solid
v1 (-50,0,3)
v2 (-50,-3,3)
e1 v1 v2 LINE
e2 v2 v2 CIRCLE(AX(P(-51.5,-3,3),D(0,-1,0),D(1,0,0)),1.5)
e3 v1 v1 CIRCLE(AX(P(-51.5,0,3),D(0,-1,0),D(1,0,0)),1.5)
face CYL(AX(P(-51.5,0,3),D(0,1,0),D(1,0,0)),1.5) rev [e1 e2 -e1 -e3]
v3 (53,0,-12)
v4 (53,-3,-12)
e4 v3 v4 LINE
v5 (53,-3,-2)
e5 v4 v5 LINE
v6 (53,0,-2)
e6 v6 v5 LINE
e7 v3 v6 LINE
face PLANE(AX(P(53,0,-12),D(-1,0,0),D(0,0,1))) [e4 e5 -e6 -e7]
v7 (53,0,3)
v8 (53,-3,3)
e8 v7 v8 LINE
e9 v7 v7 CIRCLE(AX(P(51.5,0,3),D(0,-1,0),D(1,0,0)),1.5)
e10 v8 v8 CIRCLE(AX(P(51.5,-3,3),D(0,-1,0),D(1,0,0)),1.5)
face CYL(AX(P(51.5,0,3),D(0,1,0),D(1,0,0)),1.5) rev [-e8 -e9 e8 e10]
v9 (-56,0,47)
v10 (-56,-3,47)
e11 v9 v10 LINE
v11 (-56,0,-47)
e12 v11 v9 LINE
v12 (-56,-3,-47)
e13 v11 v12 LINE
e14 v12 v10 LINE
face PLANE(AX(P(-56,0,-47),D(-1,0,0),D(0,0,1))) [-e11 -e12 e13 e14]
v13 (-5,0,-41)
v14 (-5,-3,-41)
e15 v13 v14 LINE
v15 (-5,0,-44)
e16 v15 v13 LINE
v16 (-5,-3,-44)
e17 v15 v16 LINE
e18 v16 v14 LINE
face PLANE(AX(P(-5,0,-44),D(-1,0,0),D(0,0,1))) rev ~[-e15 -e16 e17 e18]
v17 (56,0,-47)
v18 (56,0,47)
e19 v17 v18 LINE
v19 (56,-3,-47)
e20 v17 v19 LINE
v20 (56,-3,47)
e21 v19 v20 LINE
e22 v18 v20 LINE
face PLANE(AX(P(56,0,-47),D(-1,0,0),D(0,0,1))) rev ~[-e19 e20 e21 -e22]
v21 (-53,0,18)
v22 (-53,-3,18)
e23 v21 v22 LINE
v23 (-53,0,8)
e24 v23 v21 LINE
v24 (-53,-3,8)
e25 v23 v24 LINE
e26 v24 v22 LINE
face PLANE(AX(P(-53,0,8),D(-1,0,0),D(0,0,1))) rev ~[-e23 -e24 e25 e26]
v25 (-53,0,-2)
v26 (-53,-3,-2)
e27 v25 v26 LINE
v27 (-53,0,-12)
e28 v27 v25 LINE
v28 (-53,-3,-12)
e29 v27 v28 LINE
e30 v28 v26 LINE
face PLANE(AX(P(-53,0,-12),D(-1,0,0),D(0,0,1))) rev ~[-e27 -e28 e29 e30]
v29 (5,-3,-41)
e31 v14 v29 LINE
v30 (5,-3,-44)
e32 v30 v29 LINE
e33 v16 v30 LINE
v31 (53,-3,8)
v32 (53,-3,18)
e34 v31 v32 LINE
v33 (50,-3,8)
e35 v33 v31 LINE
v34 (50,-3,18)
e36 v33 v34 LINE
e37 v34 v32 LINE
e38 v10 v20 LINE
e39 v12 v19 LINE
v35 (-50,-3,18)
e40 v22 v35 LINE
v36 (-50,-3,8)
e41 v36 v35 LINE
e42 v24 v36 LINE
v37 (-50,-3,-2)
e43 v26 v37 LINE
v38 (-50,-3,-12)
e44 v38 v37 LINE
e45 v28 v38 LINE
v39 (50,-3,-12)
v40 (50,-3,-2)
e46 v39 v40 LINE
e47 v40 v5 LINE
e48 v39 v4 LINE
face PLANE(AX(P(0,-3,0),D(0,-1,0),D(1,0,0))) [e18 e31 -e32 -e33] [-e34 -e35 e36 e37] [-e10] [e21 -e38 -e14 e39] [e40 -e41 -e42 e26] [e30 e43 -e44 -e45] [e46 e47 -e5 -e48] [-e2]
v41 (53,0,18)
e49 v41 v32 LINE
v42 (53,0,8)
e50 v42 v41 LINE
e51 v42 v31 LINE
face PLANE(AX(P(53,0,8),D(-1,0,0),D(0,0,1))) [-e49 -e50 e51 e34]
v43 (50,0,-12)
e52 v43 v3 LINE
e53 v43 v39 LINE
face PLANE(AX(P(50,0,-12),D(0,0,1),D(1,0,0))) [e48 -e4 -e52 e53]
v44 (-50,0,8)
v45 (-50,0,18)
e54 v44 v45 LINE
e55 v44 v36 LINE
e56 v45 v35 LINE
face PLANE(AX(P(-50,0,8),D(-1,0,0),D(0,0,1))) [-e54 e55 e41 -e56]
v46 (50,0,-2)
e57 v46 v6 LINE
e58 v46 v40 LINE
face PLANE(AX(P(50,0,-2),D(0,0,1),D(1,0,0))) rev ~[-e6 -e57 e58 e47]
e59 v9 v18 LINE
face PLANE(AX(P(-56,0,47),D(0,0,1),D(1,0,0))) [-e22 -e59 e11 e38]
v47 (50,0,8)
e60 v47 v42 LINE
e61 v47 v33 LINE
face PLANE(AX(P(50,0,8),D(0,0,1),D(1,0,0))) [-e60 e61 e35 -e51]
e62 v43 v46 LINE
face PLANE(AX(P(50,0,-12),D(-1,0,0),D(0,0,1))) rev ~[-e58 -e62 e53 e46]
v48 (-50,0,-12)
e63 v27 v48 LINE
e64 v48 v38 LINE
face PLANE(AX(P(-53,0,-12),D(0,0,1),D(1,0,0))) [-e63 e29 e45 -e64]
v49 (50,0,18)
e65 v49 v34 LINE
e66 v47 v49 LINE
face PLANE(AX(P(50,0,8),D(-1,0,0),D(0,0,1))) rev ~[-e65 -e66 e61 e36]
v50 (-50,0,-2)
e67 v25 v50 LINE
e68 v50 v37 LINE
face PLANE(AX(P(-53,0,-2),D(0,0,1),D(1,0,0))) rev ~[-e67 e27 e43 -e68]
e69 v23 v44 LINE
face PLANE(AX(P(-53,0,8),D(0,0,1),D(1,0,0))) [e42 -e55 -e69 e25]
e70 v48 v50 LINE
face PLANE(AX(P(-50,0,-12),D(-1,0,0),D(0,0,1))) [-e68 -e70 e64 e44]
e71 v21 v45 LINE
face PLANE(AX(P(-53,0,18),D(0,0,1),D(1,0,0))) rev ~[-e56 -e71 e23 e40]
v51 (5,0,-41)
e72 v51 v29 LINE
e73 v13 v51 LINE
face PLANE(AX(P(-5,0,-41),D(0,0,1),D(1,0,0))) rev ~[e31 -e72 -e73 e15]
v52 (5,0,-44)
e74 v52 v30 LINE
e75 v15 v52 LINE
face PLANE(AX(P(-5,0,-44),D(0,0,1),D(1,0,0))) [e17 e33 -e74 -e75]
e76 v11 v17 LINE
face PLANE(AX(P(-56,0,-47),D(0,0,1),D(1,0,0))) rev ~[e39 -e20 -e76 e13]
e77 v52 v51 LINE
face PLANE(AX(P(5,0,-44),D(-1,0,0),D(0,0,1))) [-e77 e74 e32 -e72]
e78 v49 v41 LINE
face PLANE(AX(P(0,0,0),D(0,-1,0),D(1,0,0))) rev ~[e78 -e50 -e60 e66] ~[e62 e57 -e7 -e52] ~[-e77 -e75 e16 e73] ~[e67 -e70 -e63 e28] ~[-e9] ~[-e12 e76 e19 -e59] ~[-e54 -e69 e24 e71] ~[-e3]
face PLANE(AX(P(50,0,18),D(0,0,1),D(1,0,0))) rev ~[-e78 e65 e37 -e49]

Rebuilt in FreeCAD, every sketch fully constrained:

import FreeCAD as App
import Part
import Sketcher

V = App.Vector

doc = App.newDocument("Part")
body = doc.addObject("PartDesign::Body", "Body")

# Sketch on XZ plane
sketch1 = body.newObject("Sketcher::SketchObject", "Sketch")
sketch1.AttachmentSupport = (doc.getObject("XZ_Plane"), [""])
sketch1.MapMode = "FlatFace"
sketch1.addGeometry(Part.LineSegment(V(-56, 47, 0), V(-56, -47, 0)), False)
sketch1.addGeometry(Part.LineSegment(V(-56, -47, 0), V(56, -47, 0)), False)
sketch1.addGeometry(Part.LineSegment(V(56, -47, 0), V(56, 47, 0)), False)
sketch1.addGeometry(Part.LineSegment(V(56, 47, 0), V(-56, 47, 0)), False)
sketch1.addGeometry(Part.LineSegment(V(5, -44, 0), V(-5, -44, 0)), False)
sketch1.addGeometry(Part.LineSegment(V(-5, -44, 0), V(-5, -41, 0)), False)
sketch1.addGeometry(Part.LineSegment(V(-5, -41, 0), V(5, -41, 0)), False)
sketch1.addGeometry(Part.LineSegment(V(5, -41, 0), V(5, -44, 0)), False)
sketch1.addGeometry(Part.LineSegment(V(-50, -12, 0), V(-53, -12, 0)), False)
sketch1.addGeometry(Part.LineSegment(V(-53, -12, 0), V(-53, -2, 0)), False)
sketch1.addGeometry(Part.LineSegment(V(-53, -2, 0), V(-50, -2, 0)), False)
sketch1.addGeometry(Part.LineSegment(V(-50, -2, 0), V(-50, -12, 0)), False)
sketch1.addGeometry(Part.Circle(V(-51.5, 3, 0), V(0, 0, 1), 1.5), False)
sketch1.addGeometry(Part.LineSegment(V(-50, 8, 0), V(-53, 8, 0)), False)
sketch1.addGeometry(Part.LineSegment(V(-53, 8, 0), V(-53, 18, 0)), False)
sketch1.addGeometry(Part.LineSegment(V(-53, 18, 0), V(-50, 18, 0)), False)
sketch1.addGeometry(Part.LineSegment(V(-50, 18, 0), V(-50, 8, 0)), False)
sketch1.addGeometry(Part.LineSegment(V(53, -12, 0), V(50, -12, 0)), False)
sketch1.addGeometry(Part.LineSegment(V(50, -12, 0), V(50, -2, 0)), False)
sketch1.addGeometry(Part.LineSegment(V(50, -2, 0), V(53, -2, 0)), False)
sketch1.addGeometry(Part.LineSegment(V(53, -2, 0), V(53, -12, 0)), False)
sketch1.addGeometry(Part.Circle(V(51.5, 3, 0), V(0, 0, 1), 1.5), False)
sketch1.addGeometry(Part.LineSegment(V(53, 8, 0), V(50, 8, 0)), False)
sketch1.addGeometry(Part.LineSegment(V(50, 8, 0), V(50, 18, 0)), False)
sketch1.addGeometry(Part.LineSegment(V(50, 18, 0), V(53, 18, 0)), False)
sketch1.addGeometry(Part.LineSegment(V(53, 18, 0), V(53, 8, 0)), False)
sketch1.addConstraint(Sketcher.Constraint("Coincident", 0, 2, 1, 1))
sketch1.addConstraint(Sketcher.Constraint("Coincident", 1, 2, 2, 1))
sketch1.addConstraint(Sketcher.Constraint("Coincident", 2, 2, 3, 1))
sketch1.addConstraint(Sketcher.Constraint("Coincident", 3, 2, 0, 1))
sketch1.addConstraint(Sketcher.Constraint("Coincident", 4, 2, 5, 1))
sketch1.addConstraint(Sketcher.Constraint("Coincident", 5, 2, 6, 1))
sketch1.addConstraint(Sketcher.Constraint("Coincident", 6, 2, 7, 1))
sketch1.addConstraint(Sketcher.Constraint("Coincident", 7, 2, 4, 1))
sketch1.addConstraint(Sketcher.Constraint("Coincident", 8, 2, 9, 1))
sketch1.addConstraint(Sketcher.Constraint("Coincident", 9, 2, 10, 1))
sketch1.addConstraint(Sketcher.Constraint("Coincident", 10, 2, 11, 1))
sketch1.addConstraint(Sketcher.Constraint("Coincident", 11, 2, 8, 1))
sketch1.addConstraint(Sketcher.Constraint("Coincident", 13, 2, 14, 1))
sketch1.addConstraint(Sketcher.Constraint("Coincident", 14, 2, 15, 1))
sketch1.addConstraint(Sketcher.Constraint("Coincident", 15, 2, 16, 1))
sketch1.addConstraint(Sketcher.Constraint("Coincident", 16, 2, 13, 1))
sketch1.addConstraint(Sketcher.Constraint("Coincident", 17, 2, 18, 1))
sketch1.addConstraint(Sketcher.Constraint("Coincident", 18, 2, 19, 1))
sketch1.addConstraint(Sketcher.Constraint("Coincident", 19, 2, 20, 1))
sketch1.addConstraint(Sketcher.Constraint("Coincident", 20, 2, 17, 1))
sketch1.addConstraint(Sketcher.Constraint("Coincident", 22, 2, 23, 1))
sketch1.addConstraint(Sketcher.Constraint("Coincident", 23, 2, 24, 1))
sketch1.addConstraint(Sketcher.Constraint("Coincident", 24, 2, 25, 1))
sketch1.addConstraint(Sketcher.Constraint("Coincident", 25, 2, 22, 1))
sketch1.addConstraint(Sketcher.Constraint("Vertical", 0))
sketch1.addConstraint(Sketcher.Constraint("Horizontal", 1))
sketch1.addConstraint(Sketcher.Constraint("Vertical", 2))
sketch1.addConstraint(Sketcher.Constraint("Horizontal", 3))
sketch1.addConstraint(Sketcher.Constraint("Horizontal", 4))
sketch1.addConstraint(Sketcher.Constraint("Vertical", 5))
sketch1.addConstraint(Sketcher.Constraint("Horizontal", 6))
sketch1.addConstraint(Sketcher.Constraint("Vertical", 7))
sketch1.addConstraint(Sketcher.Constraint("Horizontal", 8))
sketch1.addConstraint(Sketcher.Constraint("Vertical", 9))
sketch1.addConstraint(Sketcher.Constraint("Horizontal", 10))
sketch1.addConstraint(Sketcher.Constraint("Vertical", 11))
sketch1.addConstraint(Sketcher.Constraint("Horizontal", 13))
sketch1.addConstraint(Sketcher.Constraint("Vertical", 14))
sketch1.addConstraint(Sketcher.Constraint("Horizontal", 15))
sketch1.addConstraint(Sketcher.Constraint("Vertical", 16))
sketch1.addConstraint(Sketcher.Constraint("Horizontal", 17))
sketch1.addConstraint(Sketcher.Constraint("Vertical", 18))
sketch1.addConstraint(Sketcher.Constraint("Horizontal", 19))
sketch1.addConstraint(Sketcher.Constraint("Vertical", 20))
sketch1.addConstraint(Sketcher.Constraint("Horizontal", 22))
sketch1.addConstraint(Sketcher.Constraint("Vertical", 23))
sketch1.addConstraint(Sketcher.Constraint("Horizontal", 24))
sketch1.addConstraint(Sketcher.Constraint("Vertical", 25))
sketch1.addConstraint(Sketcher.Constraint("Equal", 12, 21))
sketch1.addConstraint(Sketcher.Constraint("Symmetric", 0, 2, 2, 2, -1, 1))
sketch1.addConstraint(Sketcher.Constraint("Symmetric", 12, 3, 21, 3, -2))
sketch1.addConstraint(Sketcher.Constraint("Symmetric", 11, 2, 17, 2, -2))
sketch1.addConstraint(Sketcher.Constraint("Symmetric", 9, 2, 19, 2, -2))
sketch1.addConstraint(Sketcher.Constraint("Symmetric", 16, 2, 22, 2, -2))
sketch1.addConstraint(Sketcher.Constraint("Symmetric", 14, 2, 24, 2, -2))
sketch1.addConstraint(Sketcher.Constraint("Vertical", 9, 2, 13, 2))
sketch1.addConstraint(Sketcher.Constraint("Vertical", 11, 2, 15, 2))
sketch1.addConstraint(Sketcher.Constraint("Equal", 24, 5))
sketch1.addConstraint(Sketcher.Constraint("Equal", 6, 9))
sketch1.addConstraint(Sketcher.Constraint("Equal", 11, 14))
sketch1.addConstraint(Sketcher.Constraint("Diameter", 12, 3.0))
sketch1.addConstraint(Sketcher.Constraint("DistanceX", 1, 1, 1, 2, 112.0))
sketch1.addConstraint(Sketcher.Constraint("DistanceX", 4, 2, 4, 1, 10.0))
sketch1.addConstraint(Sketcher.Constraint("DistanceX", 8, 2, 8, 1, 3.0))
sketch1.addConstraint(Sketcher.Constraint("DistanceY", 0, 2, 0, 1, 94.0))
sketch1.addConstraint(Sketcher.Constraint("DistanceY", -1, 1, 12, 3, 3.0))
sketch1.addConstraint(Sketcher.Constraint("DistanceX", 4, 2, -1, 1, 5.0))
sketch1.addConstraint(Sketcher.Constraint("DistanceY", 4, 2, -1, 1, 44.0))
sketch1.addConstraint(Sketcher.Constraint("DistanceX", 8, 2, -1, 1, 53.0))
sketch1.addConstraint(Sketcher.Constraint("DistanceY", 8, 2, -1, 1, 12.0))
sketch1.addConstraint(Sketcher.Constraint("DistanceY", -1, 1, 13, 2, 8.0))
sketch1.addConstraint(Sketcher.Constraint("DistanceX", 12, 3, 21, 3, 103.0))
pad1 = body.newObject("PartDesign::Pad", "Pad")
pad1.Profile = sketch1
pad1.Length = 3

doc.recompute()
